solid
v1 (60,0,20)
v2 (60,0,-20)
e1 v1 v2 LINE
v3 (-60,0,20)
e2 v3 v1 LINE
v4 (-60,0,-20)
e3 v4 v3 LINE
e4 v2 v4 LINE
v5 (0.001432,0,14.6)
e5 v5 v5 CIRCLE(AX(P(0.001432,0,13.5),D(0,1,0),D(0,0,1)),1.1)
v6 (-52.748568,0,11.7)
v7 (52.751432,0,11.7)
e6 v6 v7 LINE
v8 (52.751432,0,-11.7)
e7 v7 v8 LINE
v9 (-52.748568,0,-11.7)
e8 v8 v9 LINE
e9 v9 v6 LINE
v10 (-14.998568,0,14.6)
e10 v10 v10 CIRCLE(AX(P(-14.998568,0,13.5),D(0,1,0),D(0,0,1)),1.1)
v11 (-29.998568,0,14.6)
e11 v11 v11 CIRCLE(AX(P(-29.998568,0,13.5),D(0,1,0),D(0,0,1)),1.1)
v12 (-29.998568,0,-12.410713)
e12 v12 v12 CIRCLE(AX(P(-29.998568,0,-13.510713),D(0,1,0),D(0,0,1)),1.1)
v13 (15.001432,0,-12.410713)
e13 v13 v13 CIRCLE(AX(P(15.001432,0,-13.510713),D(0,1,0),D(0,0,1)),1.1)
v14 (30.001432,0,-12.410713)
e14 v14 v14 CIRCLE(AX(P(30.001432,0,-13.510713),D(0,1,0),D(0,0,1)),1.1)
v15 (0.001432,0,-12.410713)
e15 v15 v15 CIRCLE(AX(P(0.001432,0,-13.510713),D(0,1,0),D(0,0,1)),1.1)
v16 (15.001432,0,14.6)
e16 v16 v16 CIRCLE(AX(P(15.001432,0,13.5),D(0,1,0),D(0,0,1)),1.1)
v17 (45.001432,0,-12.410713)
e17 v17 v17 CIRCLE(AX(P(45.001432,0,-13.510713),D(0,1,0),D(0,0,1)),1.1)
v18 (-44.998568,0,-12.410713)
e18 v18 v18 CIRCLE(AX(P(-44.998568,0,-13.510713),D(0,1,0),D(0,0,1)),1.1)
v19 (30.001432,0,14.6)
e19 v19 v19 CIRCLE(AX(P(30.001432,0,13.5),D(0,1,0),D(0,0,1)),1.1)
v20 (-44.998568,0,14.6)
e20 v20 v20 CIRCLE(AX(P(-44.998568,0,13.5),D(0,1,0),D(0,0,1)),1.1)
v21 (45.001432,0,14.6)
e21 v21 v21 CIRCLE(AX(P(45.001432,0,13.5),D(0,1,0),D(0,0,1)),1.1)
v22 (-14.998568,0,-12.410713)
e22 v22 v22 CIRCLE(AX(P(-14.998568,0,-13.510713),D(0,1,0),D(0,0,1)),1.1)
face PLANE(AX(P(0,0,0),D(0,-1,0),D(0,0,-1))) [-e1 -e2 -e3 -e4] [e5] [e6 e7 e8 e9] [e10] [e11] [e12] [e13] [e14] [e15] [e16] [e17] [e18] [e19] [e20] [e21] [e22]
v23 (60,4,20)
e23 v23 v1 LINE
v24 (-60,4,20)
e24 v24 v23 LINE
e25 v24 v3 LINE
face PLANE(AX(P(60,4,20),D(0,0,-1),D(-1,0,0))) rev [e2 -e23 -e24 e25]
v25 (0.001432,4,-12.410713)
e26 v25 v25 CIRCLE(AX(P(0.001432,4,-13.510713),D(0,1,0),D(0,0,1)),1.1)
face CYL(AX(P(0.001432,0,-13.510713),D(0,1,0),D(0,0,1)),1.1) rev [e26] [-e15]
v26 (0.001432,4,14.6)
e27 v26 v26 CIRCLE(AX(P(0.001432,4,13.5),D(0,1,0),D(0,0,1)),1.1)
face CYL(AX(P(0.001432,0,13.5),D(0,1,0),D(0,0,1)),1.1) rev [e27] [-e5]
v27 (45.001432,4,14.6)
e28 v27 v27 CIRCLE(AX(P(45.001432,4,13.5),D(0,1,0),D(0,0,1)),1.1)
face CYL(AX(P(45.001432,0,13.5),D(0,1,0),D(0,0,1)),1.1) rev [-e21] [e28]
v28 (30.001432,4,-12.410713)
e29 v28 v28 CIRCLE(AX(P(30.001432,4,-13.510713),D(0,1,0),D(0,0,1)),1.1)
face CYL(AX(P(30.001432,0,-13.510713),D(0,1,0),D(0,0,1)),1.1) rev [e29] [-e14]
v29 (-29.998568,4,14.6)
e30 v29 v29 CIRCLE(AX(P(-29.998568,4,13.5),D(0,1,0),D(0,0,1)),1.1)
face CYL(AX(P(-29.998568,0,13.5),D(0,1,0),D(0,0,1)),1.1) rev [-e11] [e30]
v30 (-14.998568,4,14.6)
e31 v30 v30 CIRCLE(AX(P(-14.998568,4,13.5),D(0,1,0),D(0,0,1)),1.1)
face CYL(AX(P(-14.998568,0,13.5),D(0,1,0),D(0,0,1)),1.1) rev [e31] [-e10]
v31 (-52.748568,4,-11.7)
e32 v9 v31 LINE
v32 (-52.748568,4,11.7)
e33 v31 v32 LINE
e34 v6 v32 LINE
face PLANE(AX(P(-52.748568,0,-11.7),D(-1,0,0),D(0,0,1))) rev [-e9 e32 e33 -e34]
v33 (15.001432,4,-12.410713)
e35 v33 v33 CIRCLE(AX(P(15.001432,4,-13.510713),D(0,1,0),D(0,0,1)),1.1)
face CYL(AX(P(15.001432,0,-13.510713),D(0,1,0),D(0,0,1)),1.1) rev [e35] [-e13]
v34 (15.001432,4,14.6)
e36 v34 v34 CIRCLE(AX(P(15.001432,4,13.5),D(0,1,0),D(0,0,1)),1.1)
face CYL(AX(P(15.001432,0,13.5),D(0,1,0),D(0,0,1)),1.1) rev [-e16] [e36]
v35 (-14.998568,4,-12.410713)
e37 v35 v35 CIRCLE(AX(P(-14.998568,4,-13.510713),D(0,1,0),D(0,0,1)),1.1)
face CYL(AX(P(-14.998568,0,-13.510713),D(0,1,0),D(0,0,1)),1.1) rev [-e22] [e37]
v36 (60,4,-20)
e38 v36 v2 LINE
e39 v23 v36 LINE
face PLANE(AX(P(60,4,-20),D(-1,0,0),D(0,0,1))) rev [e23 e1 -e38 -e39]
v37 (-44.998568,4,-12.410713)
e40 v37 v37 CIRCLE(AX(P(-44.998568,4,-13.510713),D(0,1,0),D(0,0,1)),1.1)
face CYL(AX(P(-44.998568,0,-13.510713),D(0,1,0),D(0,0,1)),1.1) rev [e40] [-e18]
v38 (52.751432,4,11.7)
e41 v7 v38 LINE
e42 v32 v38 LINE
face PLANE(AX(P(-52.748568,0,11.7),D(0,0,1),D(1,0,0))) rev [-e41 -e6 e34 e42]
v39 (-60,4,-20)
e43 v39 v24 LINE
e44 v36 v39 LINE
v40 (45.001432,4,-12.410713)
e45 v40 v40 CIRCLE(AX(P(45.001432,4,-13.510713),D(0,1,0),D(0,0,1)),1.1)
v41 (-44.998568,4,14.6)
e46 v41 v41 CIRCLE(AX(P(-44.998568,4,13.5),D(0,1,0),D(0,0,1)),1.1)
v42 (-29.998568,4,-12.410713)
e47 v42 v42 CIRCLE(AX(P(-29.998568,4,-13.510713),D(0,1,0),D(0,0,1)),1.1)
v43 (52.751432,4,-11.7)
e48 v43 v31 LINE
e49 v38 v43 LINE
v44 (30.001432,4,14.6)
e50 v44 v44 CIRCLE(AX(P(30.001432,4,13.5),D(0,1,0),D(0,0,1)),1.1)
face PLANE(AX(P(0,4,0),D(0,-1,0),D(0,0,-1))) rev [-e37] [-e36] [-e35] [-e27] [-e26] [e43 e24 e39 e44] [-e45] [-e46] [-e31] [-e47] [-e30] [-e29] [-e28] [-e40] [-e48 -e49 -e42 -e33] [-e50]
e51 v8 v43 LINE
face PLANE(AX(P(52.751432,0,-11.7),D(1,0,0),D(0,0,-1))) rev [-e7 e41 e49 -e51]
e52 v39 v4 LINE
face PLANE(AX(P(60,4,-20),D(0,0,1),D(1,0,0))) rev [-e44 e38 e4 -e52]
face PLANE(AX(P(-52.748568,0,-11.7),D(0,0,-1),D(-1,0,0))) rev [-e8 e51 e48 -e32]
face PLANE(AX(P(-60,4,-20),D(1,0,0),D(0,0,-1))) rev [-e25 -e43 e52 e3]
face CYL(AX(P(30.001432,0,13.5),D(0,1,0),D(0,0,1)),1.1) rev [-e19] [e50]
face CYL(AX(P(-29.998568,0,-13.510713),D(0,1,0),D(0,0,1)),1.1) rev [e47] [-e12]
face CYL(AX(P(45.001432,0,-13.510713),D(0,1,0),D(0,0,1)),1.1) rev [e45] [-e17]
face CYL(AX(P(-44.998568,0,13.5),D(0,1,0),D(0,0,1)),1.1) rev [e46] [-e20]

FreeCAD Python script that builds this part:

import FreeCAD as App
import Part
import Sketcher
from FreeCAD import Vector
Q = App.Units.Quantity


def add_polygon(sketch, points):
    """Adds a closed chain of lines whose ends are joined by coincident constraints."""
    first, n = sketch.GeometryCount, len(points)
    for a, b in zip(points, points[1:] + points[:1]):
        sketch.addGeometry(Part.LineSegment(App.Vector(*a, 0), App.Vector(*b, 0)), False)
    for i in range(n):
        sketch.addConstraint(Sketcher.Constraint("Coincident", first + i, 2, first + (i + 1) % n, 1))

doc = App.newDocument("Part")
body = doc.addObject("PartDesign::Body", "Body")

sketch1 = body.newObject("Sketcher::SketchObject", "Sketch")
sketch1.AttachmentSupport = (doc.getObject("XZ_Plane"), [""])
sketch1.MapMode = "FlatFace"
add_polygon(sketch1, [(-60, -20), (-60, 20), (60, 20), (60, -20)])
sketch1.addConstraint(Sketcher.Constraint("Vertical", 0))
sketch1.addConstraint(Sketcher.Constraint("Horizontal", 1))
sketch1.addConstraint(Sketcher.Constraint("Vertical", 2))
sketch1.addConstraint(Sketcher.Constraint("Horizontal", 3))
sketch1.addConstraint(Sketcher.Constraint("Symmetric", 0, 2, 2, 2, -1, 1))
sketch1.addConstraint(Sketcher.Constraint("DistanceX", 1, 1, 1, 2, Q("120 mm")))
sketch1.addConstraint(Sketcher.Constraint("DistanceY", 0, 1, 0, 2, Q("40 mm")))
pad1 = body.newObject("PartDesign::Pad", "Pad")
pad1.Profile = sketch1
pad1.Length = 4
pad1.Reversed = True

sketch2 = body.newObject("Sketcher::SketchObject", "Sketch001")
sketch2.AttachmentSupport = (doc.getObject("XZ_Plane"), [""])
sketch2.MapMode = "FlatFace"
sketch2.AttachmentOffset = App.Placement(Vector(0, 0, -4), App.Rotation())
sketch2.addGeometry(Part.Circle(Vector(-44.998568, -13.510713, 0), Vector(0, 0, 1), 1.1), False)
sketch2.addGeometry(Part.Circle(Vector(-44.998568, 13.5, 0), Vector(0, 0, 1), 1.1), False)
sketch2.addGeometry(Part.Circle(Vector(-29.998568, -13.510713, 0), Vector(0, 0, 1), 1.1), False)
sketch2.addGeometry(Part.Circle(Vector(-29.998568, 13.5, 0), Vector(0, 0, 1), 1.1), False)
sketch2.addGeometry(Part.Circle(Vector(-14.998568, -13.510713, 0), Vector(0, 0, 1), 1.1), False)
sketch2.addGeometry(Part.Circle(Vector(-14.998568, 13.5, 0), Vector(0, 0, 1), 1.1), False)
sketch2.addGeometry(Part.Circle(Vector(0.001432, -13.510713, 0), Vector(0, 0, 1), 1.1), False)
sketch2.addGeometry(Part.Circle(Vector(0.001432, 13.5, 0), Vector(0, 0, 1), 1.1), False)
sketch2.addGeometry(Part.Circle(Vector(15.001432, -13.510713, 0), Vector(0, 0, 1), 1.1), False)
sketch2.addGeometry(Part.Circle(Vector(15.001432, 13.5, 0), Vector(0, 0, 1), 1.1), False)
sketch2.addGeometry(Part.Circle(Vector(30.001432, -13.510713, 0), Vector(0, 0, 1), 1.1), False)
sketch2.addGeometry(Part.Circle(Vector(30.001432, 13.5, 0), Vector(0, 0, 1), 1.1), False)
sketch2.addGeometry(Part.Circle(Vector(45.001432, -13.510713, 0), Vector(0, 0, 1), 1.1), False)
sketch2.addGeometry(Part.Circle(Vector(45.001432, 13.5, 0), Vector(0, 0, 1), 1.1), False)
add_polygon(sketch2, [(-36.248568, -11.5), (-36.248568, 11.5), (-23.748568, 11.5), (-23.748568, -11.5)])
add_polygon(sketch2, [(-51.248568, -11.5), (-51.248568, 11.5), (-38.748568, 11.5), (-38.748568, -11.5)])
add_polygon(sketch2, [(-21.248568, -11.5), (-21.248568, 11.5), (-8.748568, 11.5), (-8.748568, -11.5)])
add_polygon(sketch2, [(-6.248568, -11.5), (-6.248568, 11.5), (6.251432, 11.5), (6.251432, -11.5)])
add_polygon(sketch2, [(8.751432, -11.5), (8.751432, 11.5), (21.251432, 11.5), (21.251432, -11.5)])
add_polygon(sketch2, [(23.751432, -11.5), (23.751432, 11.5), (36.251432, 11.5), (36.251432, -11.5)])
add_polygon(sketch2, [(38.751432, -11.5), (38.751432, 11.5), (51.251432, 11.5), (51.251432, -11.5)])
sketch2.addConstraint(Sketcher.Constraint("Vertical", 14))
sketch2.addConstraint(Sketcher.Constraint("Horizontal", 15))
sketch2.addConstraint(Sketcher.Constraint("Vertical", 16))
sketch2.addConstraint(Sketcher.Constraint("Horizontal", 17))
sketch2.addConstraint(Sketcher.Constraint("Vertical", 18))
sketch2.addConstraint(Sketcher.Constraint("Horizontal", 19))
sketch2.addConstraint(Sketcher.Constraint("Vertical", 20))
sketch2.addConstraint(Sketcher.Constraint("Horizontal", 21))
sketch2.addConstraint(Sketcher.Constraint("Vertical", 22))
sketch2.addConstraint(Sketcher.Constraint("Horizontal", 23))
sketch2.addConstraint(Sketcher.Constraint("Vertical", 24))
sketch2.addConstraint(Sketcher.Constraint("Horizontal", 25))
sketch2.addConstraint(Sketcher.Constraint("Vertical", 26))
sketch2.addConstraint(Sketcher.Constraint("Horizontal", 27))
sketch2.addConstraint(Sketcher.Constraint("Vertical", 28))
sketch2.addConstraint(Sketcher.Constraint("Horizontal", 29))
sketch2.addConstraint(Sketcher.Constraint("Vertical", 30))
sketch2.addConstraint(Sketcher.Constraint("Horizontal", 31))
sketch2.addConstraint(Sketcher.Constraint("Vertical", 32))
sketch2.addConstraint(Sketcher.Constraint("Horizontal", 33))
sketch2.addConstraint(Sketcher.Constraint("Vertical", 34))
sketch2.addConstraint(Sketcher.Constraint("Horizontal", 35))
sketch2.addConstraint(Sketcher.Constraint("Vertical", 36))
sketch2.addConstraint(Sketcher.Constraint("Horizontal", 37))
sketch2.addConstraint(Sketcher.Constraint("Vertical", 38))
sketch2.addConstraint(Sketcher.Constraint("Horizontal", 39))
sketch2.addConstraint(Sketcher.Constraint("Vertical", 40))
sketch2.addConstraint(Sketcher.Constraint("Horizontal", 41))
sketch2.addConstraint(Sketcher.Constraint("Equal", 0, 1))
sketch2.addConstraint(Sketcher.Constraint("Equal", 1, 2))
sketch2.addConstraint(Sketcher.Constraint("Equal", 2, 3))
sketch2.addConstraint(Sketcher.Constraint("Equal", 3, 4))
sketch2.addConstraint(Sketcher.Constraint("Equal", 4, 5))
sketch2.addConstraint(Sketcher.Constraint("Equal", 5, 6))
sketch2.addConstraint(Sketcher.Constraint("Equal", 6, 7))
sketch2.addConstraint(Sketcher.Constraint("Equal", 7, 8))
sketch2.addConstraint(Sketcher.Constraint("Equal", 8, 9))
sketch2.addConstraint(Sketcher.Constraint("Equal", 9, 10))
sketch2.addConstraint(Sketcher.Constraint("Equal", 10, 11))
sketch2.addConstraint(Sketcher.Constraint("Equal", 11, 12))
sketch2.addConstraint(Sketcher.Constraint("Equal", 12, 13))
sketch2.addConstraint(Sketcher.Constraint("Horizontal", 0, 3, 2, 3))
sketch2.addConstraint(Sketcher.Constraint("Horizontal", 1, 3, 3, 3))
sketch2.addConstraint(Sketcher.Constraint("Horizontal", 2, 3, 4, 3))
sketch2.addConstraint(Sketcher.Constraint("Horizontal", 3, 3, 5, 3))
sketch2.addConstraint(Sketcher.Constraint("Horizontal", 4, 3, 6, 3))
sketch2.addConstraint(Sketcher.Constraint("Horizontal", 5, 3, 7, 3))
sketch2.addConstraint(Sketcher.Constraint("Horizontal", 6, 3, 8, 3))
sketch2.addConstraint(Sketcher.Constraint("Horizontal", 7, 3, 9, 3))
sketch2.addConstraint(Sketcher.Constraint("Horizontal", 8, 3, 10, 3))
sketch2.addConstraint(Sketcher.Constraint("Horizontal", 9, 3, 11, 3))
sketch2.addConstraint(Sketcher.Constraint("Horizontal", 10, 3, 12, 3))
sketch2.addConstraint(Sketcher.Constraint("Horizontal", 11, 3, 13, 3))
sketch2.addConstraint(Sketcher.Constraint("Horizontal", 15, 2, 18, 2))
sketch2.addConstraint(Sketcher.Constraint("Horizontal", 17, 2, 20, 2))
sketch2.addConstraint(Sketcher.Constraint("Horizontal", 19, 2, 22, 2))
sketch2.addConstraint(Sketcher.Constraint("Horizontal", 21, 2, 24, 2))
sketch2.addConstraint(Sketcher.Constraint("Horizontal", 23, 2, 26, 2))
sketch2.addConstraint(Sketcher.Constraint("Horizontal", 25, 2, 28, 2))
sketch2.addConstraint(Sketcher.Constraint("Horizontal", 27, 2, 30, 2))
sketch2.addConstraint(Sketcher.Constraint("Horizontal", 29, 2, 32, 2))
sketch2.addConstraint(Sketcher.Constraint("Horizontal", 31, 2, 34, 2))
sketch2.addConstraint(Sketcher.Constraint("Horizontal", 33, 2, 36, 2))
sketch2.addConstraint(Sketcher.Constraint("Horizontal", 35, 2, 38, 2))
sketch2.addConstraint(Sketcher.Constraint("Horizontal", 37, 2, 40, 2))
sketch2.addConstraint(Sketcher.Constraint("Vertical", 0, 3, 1, 3))
sketch2.addConstraint(Sketcher.Constraint("Vertical", 2, 3, 3, 3))
sketch2.addConstraint(Sketcher.Constraint("Vertical", 4, 3, 5, 3))
sketch2.addConstraint(Sketcher.Constraint("Vertical", 6, 3, 7, 3))
sketch2.addConstraint(Sketcher.Constraint("Vertical", 8, 3, 9, 3))
sketch2.addConstraint(Sketcher.Constraint("Vertical", 10, 3, 11, 3))
sketch2.addConstraint(Sketcher.Constraint("Vertical", 12, 3, 13, 3))
sketch2.addConstraint(Sketcher.Constraint("Equal", 17, 19))
sketch2.addConstraint(Sketcher.Constraint("Equal", 21, 23))
sketch2.addConstraint(Sketcher.Constraint("Equal", 25, 27))
sketch2.addConstraint(Sketcher.Constraint("Equal", 29, 31))
sketch2.addConstraint(Sketcher.Constraint("Equal", 33, 35))
sketch2.addConstraint(Sketcher.Constraint("Equal", 37, 39))
sketch2.addConstraint(Sketcher.Constraint("Diameter", 0, Q("2.2 mm")))
sketch2.addConstraint(Sketcher.Constraint("DistanceY", 14, 1, 14, 2, Q("23 mm")))
sketch2.addConstraint(Sketcher.Constraint("DistanceX", 15, 1, 15, 2, Q("12.5 mm")))
sketch2.addConstraint(Sketcher.Constraint("DistanceX", 0, 3, 2, 3, Q("15 mm")))
sketch2.addConstraint(Sketcher.Constraint("DistanceX", 2, 3, 4, 3, Q("15 mm")))
sketch2.addConstraint(Sketcher.Constraint("DistanceX", 4, 3, 6, 3, Q("15 mm")))
sketch2.addConstraint(Sketcher.Constraint("DistanceX", 6, 3, 8, 3, Q("15 mm")))
sketch2.addConstraint(Sketcher.Constraint("DistanceX", 8, 3, 10, 3, Q("15 mm")))
sketch2.addConstraint(Sketcher.Constraint("DistanceX", 10, 3, 12, 3, Q("15 mm")))
sketch2.addConstraint(Sketcher.Constraint("DistanceY", 14, 2, 3, 3, Q("2 mm")))
sketch2.addConstraint(Sketcher.Constraint("DistanceX", 18, 2, 14, 2, Q("15 mm")))
sketch2.addConstraint(Sketcher.Constraint("DistanceX", 14, 2, 22, 2, Q("15 mm")))
sketch2.addConstraint(Sketcher.Constraint("DistanceX", 22, 2, 26, 2, Q("15 mm")))
sketch2.addConstraint(Sketcher.Constraint("DistanceX", 26, 2, 30, 2, Q("15 mm")))
sketch2.addConstraint(Sketcher.Constraint("DistanceX", 30, 2, 34, 2, Q("15 mm")))
sketch2.addConstraint(Sketcher.Constraint("DistanceX", 34, 2, 38, 2, Q("15 mm")))
sketch2.addConstraint(Sketcher.Constraint("DistanceY", -1, 1, 1, 3, Q("13.5 mm")))
sketch2.addConstraint(Sketcher.Constraint("DistanceX", 14, 2, 3, 3, Q("6.25 mm")))
sketch2.addConstraint(Sketcher.Constraint("DistanceX", 0, 3, -1, 1, Q("44.998568 mm")))
sketch2.addConstraint(Sketcher.Constraint("DistanceY", 0, 3, -1, 1, Q("13.510713 mm")))
pocket1 = body.newObject("PartDesign::Pocket", "Pocket")
pocket1.Profile = sketch2
pocket1.Type = "ThroughAll"
pocket1.Reversed = True

sketch3 = body.newObject("Sketcher::SketchObject", "Sketch002")
sketch3.AttachmentSupport = (doc.getObject("XZ_Plane"), [""])
sketch3.MapMode = "FlatFace"
sketch3.AttachmentOffset = App.Placement(Vector(0, 0, -4), App.Rotation())
add_polygon(sketch3, [(-52.748568, -11.7), (-52.748568, 11.7), (52.751432, 11.7), (52.751432, -11.7)])
sketch3.addConstraint(Sketcher.Constraint("Vertical", 0))
sketch3.addConstraint(Sketcher.Constraint("Horizontal", 1))
sketch3.addConstraint(Sketcher.Constraint("Vertical", 2))
sketch3.addConstraint(Sketcher.Constraint("Horizontal", 3))
sketch3.addConstraint(Sketcher.Constraint("DistanceX", 1, 1, 1, 2, Q("105.5 mm")))
sketch3.addConstraint(Sketcher.Constraint("DistanceY", 0, 1, 0, 2, Q("23.4 mm")))
sketch3.addConstraint(Sketcher.Constraint("DistanceY", -1, 1, 0, 2, Q("11.7 mm")))
sketch3.addConstraint(Sketcher.Constraint("DistanceX", 0, 2, -1, 1, Q("52.748568 mm")))
pocket2 = body.newObject("PartDesign::Pocket", "Pocket001")
pocket2.Profile = sketch3
pocket2.Type = "ThroughAll"
pocket2.Reversed = True

doc.recompute()
